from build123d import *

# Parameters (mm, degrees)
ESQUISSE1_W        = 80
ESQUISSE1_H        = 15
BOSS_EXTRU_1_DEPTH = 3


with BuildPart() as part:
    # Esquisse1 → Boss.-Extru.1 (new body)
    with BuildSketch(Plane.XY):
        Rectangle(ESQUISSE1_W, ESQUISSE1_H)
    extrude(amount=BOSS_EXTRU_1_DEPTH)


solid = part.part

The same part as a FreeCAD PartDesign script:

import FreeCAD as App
import Part
import Sketcher

doc = App.newDocument("Part")
body = doc.addObject("PartDesign::Body", "Body")

# Sketch on XY plane
sketch1 = body.newObject("Sketcher::SketchObject", "Sketch")
sketch1.AttachmentSupport = (doc.getObject("XY_Plane"), [""])
sketch1.MapMode = "FlatFace"
sketch1.addGeometry([
    Part.LineSegment(App.Vector(-40, 8, 0), App.Vector(-40, -8, 0)),
    Part.LineSegment(App.Vector(-40, -8, 0), App.Vector(40, -8, 0)),
    Part.LineSegment(App.Vector(40, -8, 0), App.Vector(40, 8, 0)),
    Part.LineSegment(App.Vector(40, 8, 0), App.Vector(-40, 8, 0)),
], False)
sketch1.addConstraint([
    Sketcher.Constraint("Coincident", 0, 2, 1, 1),
    Sketcher.Constraint("Coincident", 1, 2, 2, 1),
    Sketcher.Constraint("Coincident", 2, 2, 3, 1),
    Sketcher.Constraint("Coincident", 3, 2, 0, 1),
    Sketcher.Constraint("Vertical", 0),
    Sketcher.Constraint("Horizontal", 1),
    Sketcher.Constraint("Vertical", 2),
    Sketcher.Constraint("Horizontal", 3),
    Sketcher.Constraint("Symmetric", 0, 2, 2, 2, -1, 1),
    Sketcher.Constraint("DistanceX", 1, 1, 1, 2, 80.0),
    Sketcher.Constraint("DistanceY", 0, 2, 0, 1, 15.0),
])
pad1 = body.newObject("PartDesign::Pad", "Pad")
pad1.Profile = sketch1
pad1.Length = 3

doc.recompute()
